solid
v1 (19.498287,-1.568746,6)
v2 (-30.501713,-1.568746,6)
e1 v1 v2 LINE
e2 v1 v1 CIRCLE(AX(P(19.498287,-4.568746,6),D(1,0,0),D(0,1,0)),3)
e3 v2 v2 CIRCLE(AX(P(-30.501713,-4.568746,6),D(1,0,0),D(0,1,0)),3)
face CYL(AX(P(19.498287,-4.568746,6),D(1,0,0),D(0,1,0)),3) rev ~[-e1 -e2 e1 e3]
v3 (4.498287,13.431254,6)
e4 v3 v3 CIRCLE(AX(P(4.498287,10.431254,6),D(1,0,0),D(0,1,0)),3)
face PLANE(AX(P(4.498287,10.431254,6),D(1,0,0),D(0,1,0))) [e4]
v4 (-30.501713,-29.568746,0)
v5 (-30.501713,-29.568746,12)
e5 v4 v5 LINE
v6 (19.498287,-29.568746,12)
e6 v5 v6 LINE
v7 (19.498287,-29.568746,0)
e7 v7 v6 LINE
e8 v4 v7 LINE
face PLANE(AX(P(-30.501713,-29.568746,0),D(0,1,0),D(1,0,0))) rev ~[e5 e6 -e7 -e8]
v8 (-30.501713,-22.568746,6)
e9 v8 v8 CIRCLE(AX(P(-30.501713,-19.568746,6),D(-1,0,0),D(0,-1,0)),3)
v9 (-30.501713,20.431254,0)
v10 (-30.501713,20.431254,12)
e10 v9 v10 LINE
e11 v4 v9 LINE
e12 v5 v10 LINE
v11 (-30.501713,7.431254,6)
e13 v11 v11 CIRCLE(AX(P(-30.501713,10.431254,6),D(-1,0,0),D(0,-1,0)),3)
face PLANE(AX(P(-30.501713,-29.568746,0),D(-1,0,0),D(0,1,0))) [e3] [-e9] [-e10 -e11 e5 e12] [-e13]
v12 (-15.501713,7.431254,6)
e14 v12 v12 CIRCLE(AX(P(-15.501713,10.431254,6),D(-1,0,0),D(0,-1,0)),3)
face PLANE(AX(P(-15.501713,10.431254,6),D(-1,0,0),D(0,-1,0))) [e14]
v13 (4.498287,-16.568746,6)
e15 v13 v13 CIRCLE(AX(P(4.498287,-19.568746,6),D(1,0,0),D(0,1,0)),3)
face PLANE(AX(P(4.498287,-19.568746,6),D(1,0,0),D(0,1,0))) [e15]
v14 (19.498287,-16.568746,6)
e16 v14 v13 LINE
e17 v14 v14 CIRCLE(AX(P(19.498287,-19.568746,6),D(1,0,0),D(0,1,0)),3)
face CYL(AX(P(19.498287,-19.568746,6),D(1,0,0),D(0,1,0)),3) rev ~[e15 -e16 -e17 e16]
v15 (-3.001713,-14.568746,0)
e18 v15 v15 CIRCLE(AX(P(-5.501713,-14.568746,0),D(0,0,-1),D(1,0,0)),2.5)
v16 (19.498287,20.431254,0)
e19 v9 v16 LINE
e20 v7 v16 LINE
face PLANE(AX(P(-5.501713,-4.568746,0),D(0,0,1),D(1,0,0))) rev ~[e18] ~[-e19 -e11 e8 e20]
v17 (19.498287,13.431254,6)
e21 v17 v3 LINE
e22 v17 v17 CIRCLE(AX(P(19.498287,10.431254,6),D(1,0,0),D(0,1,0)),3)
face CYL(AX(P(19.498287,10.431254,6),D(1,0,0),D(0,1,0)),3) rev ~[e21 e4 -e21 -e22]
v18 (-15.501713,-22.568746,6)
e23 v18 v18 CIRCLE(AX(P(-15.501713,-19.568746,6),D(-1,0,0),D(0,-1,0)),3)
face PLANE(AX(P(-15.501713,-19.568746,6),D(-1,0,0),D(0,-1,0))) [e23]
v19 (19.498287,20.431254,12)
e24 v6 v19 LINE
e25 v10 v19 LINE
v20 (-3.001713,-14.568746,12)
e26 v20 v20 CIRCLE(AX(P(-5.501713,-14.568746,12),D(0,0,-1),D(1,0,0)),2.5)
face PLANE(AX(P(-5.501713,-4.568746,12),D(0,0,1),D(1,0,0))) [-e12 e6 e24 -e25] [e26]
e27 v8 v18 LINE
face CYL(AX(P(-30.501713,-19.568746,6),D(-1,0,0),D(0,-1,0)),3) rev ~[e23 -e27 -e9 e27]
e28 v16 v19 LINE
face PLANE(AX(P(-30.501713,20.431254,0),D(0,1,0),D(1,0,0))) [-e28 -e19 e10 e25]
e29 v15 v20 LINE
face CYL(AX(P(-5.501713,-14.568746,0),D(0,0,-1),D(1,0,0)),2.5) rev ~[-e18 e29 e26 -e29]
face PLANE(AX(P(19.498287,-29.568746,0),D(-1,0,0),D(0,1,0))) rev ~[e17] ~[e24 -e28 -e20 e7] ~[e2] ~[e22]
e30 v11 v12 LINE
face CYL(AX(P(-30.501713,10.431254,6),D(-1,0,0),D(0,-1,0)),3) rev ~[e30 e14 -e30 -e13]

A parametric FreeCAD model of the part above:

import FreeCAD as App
import Part
import Sketcher
from FreeCAD import Vector


def add_polygon(sketch, points):
    """Adds a closed chain of lines whose ends are joined by coincident constraints."""
    first, n = sketch.GeometryCount, len(points)
    for a, b in zip(points, points[1:] + points[:1]):
        sketch.addGeometry(Part.LineSegment(App.Vector(*a, 0), App.Vector(*b, 0)), False)
    for i in range(n):
        sketch.addConstraint(Sketcher.Constraint("Coincident", first + i, 2, first + (i + 1) % n, 1))

doc = App.newDocument("Part")
body = doc.addObject("PartDesign::Body", "Body")

# Sketch on XY plane
sketch1 = doc.addObject("Sketcher::SketchObject", "Sketch")
body.addObject(sketch1)
sketch1.AttachmentSupport = (doc.XY_Plane, [""])
sketch1.MapMode = "FlatFace"
add_polygon(sketch1, [(-31, 20), (-31, -30), (19, -30), (19, 20)])  # lines 0-3
sketch1.addConstraint([
    Sketcher.Constraint("Vertical", 0),
    Sketcher.Constraint("Horizontal", 1),
    Sketcher.Constraint("Vertical", 2),
    Sketcher.Constraint("Horizontal", 3),
    Sketcher.Constraint("Equal", 3, 0),
    Sketcher.Constraint("DistanceX", 1, 1, 1, 2, 50.0),
    Sketcher.Constraint("DistanceX", 0, 2, -1, 1, 30.501713),
    Sketcher.Constraint("DistanceY", 0, 2, -1, 1, 29.568746),
])
pad1 = doc.addObject("PartDesign::Pad", "Pad")
body.addObject(pad1)
pad1.Profile = sketch1
pad1.Length = 12

# Sketch on YZ plane
sketch2 = doc.addObject("Sketcher::SketchObject", "Sketch001")
body.addObject(sketch2)
sketch2.AttachmentSupport = (doc.YZ_Plane, [""])
sketch2.MapMode = "FlatFace"
sketch2.AttachmentOffset = App.Placement(Vector(0, 0, -30.501713), App.Rotation())
sketch2.addGeometry([
    Part.Circle(Vector(10.4, 6, 0), Vector(0, 0, 1), 3),
    Part.Circle(Vector(-19.6, 6, 0), Vector(0, 0, 1), 3),
], False)
sketch2.addConstraint([
    Sketcher.Constraint("Equal", 0, 1),
    Sketcher.Constraint("Horizontal", 0, 3, 1, 3),
    Sketcher.Constraint("Diameter", 0, 6.0),
    Sketcher.Constraint("DistanceY", -1, 1, 0, 3, 6.0),
    Sketcher.Constraint("DistanceX", 1, 3, 0, 3, 30.0),
    Sketcher.Constraint("DistanceX", -1, 1, 0, 3, 10.431254),
])
pocket1 = doc.addObject("PartDesign::Pocket", "Pocket")
body.addObject(pocket1)
pocket1.Profile = sketch2
pocket1.Length = 15
pocket1.Reversed = True

# Sketch on YZ plane
sketch3 = doc.addObject("Sketcher::SketchObject", "Sketch002")
body.addObject(sketch3)
sketch3.AttachmentSupport = (doc.YZ_Plane, [""])
sketch3.MapMode = "FlatFace"
sketch3.AttachmentOffset = App.Placement(Vector(0, 0, 19.498287), App.Rotation())
sketch3.addGeometry([
    Part.Circle(Vector(10.4, 6, 0), Vector(0, 0, 1), 3),
    Part.Circle(Vector(-19.6, 6, 0), Vector(0, 0, 1), 3),
], False)
sketch3.addConstraint([
    Sketcher.Constraint("Equal", 0, 1),
    Sketcher.Constraint("Horizontal", 0, 3, 1, 3),
    Sketcher.Constraint("Diameter", 0, 6.0),
    Sketcher.Constraint("DistanceY", -1, 1, 0, 3, 6.0),
    Sketcher.Constraint("DistanceX", 1, 3, 0, 3, 30.0),
    Sketcher.Constraint("DistanceX", -1, 1, 0, 3, 10.431254),
])
pocket2 = doc.addObject("PartDesign::Pocket", "Pocket001")
body.addObject(pocket2)
pocket2.Profile = sketch3
pocket2.Length = 15

# Sketch on YZ plane
sketch4 = doc.addObject("Sketcher::SketchObject", "Sketch003")
body.addObject(sketch4)
sketch4.AttachmentSupport = (doc.YZ_Plane, [""])
sketch4.MapMode = "FlatFace"
sketch4.AttachmentOffset = App.Placement(Vector(0, 0, 19.498287), App.Rotation())
sketch4.addGeometry(Part.Circle(Vector(-4.6, 6, 0), Vector(0, 0, 1), 3), False)
sketch4.addConstraint([
    Sketcher.Constraint("Diameter", 0, 6.0),
    Sketcher.Constraint("DistanceY", -1, 1, 0, 3, 6.0),
    Sketcher.Constraint("DistanceX", 0, 3, -1, 1, 4.568746),
])
pocket3 = doc.addObject("PartDesign::Pocket", "Pocket002")
body.addObject(pocket3)
pocket3.Profile = sketch4
pocket3.Type = "ThroughAll"

# Sketch on XY plane
sketch5 = doc.addObject("Sketcher::SketchObject", "Sketch004")
body.addObject(sketch5)
sketch5.AttachmentSupport = (doc.XY_Plane, [""])
sketch5.MapMode = "FlatFace"
sketch5.addGeometry(Part.Circle(Vector(-5.5, -14.6, 0), Vector(0, 0, 1), 2.5), False)
sketch5.addConstraint([
    Sketcher.Constraint("Diameter", 0, 5.0),
    Sketcher.Constraint("DistanceX", 0, 3, -1, 1, 5.501713),
    Sketcher.Constraint("DistanceY", 0, 3, -1, 1, 14.568746),
])
pocket4 = doc.addObject("PartDesign::Pocket", "Pocket003")
body.addObject(pocket4)
pocket4.Profile = sketch5
pocket4.Type = "ThroughAll"
pocket4.Reversed = True

doc.recompute()
